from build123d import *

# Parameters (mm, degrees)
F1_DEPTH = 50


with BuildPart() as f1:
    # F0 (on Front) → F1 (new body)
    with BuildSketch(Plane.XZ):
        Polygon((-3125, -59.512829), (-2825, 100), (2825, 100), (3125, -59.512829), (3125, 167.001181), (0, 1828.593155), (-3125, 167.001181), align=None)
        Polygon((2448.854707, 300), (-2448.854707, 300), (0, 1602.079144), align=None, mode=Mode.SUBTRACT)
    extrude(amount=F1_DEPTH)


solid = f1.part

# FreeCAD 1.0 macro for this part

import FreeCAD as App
import Part
import Sketcher
from FreeCAD import Vector
Q = App.Units.Quantity

doc = App.newDocument("Part")
params = doc.addObject("Spreadsheet::Sheet", "Params")
for row, (alias, value) in enumerate([
    ("sketch1_width", "5650 mm"),
    ("pad1_length", "50 mm"),
], start=1):
    params.set(f"A{row}", alias)
    params.set(f"B{row}", "=" + value)
    params.setAlias(f"B{row}", alias)

body = doc.addObject("PartDesign::Body", "Body")

# Sketch on XZ plane
sketch1 = doc.addObject("Sketcher::SketchObject", "Sketch")
body.addObject(sketch1)
sketch1.AttachmentSupport = (doc.XZ_Plane, [""])
sketch1.MapMode = "FlatFace"
sketch1.addGeometry(Part.LineSegment(Vector(-3125, -60, 0), Vector(-2825, 100, 0)), False)
sketch1.addGeometry(Part.LineSegment(Vector(-2825, 100, 0), Vector(2825, 100, 0)), False)
sketch1.addGeometry(Part.LineSegment(Vector(2825, 100, 0), Vector(3125, -60, 0)), False)
sketch1.addGeometry(Part.LineSegment(Vector(3125, -60, 0), Vector(3125, 167, 0)), False)
sketch1.addGeometry(Part.LineSegment(Vector(3125, 167, 0), Vector(0, 1829, 0)), False)
sketch1.addGeometry(Part.LineSegment(Vector(0, 1829, 0), Vector(-3125, 167, 0)), False)
sketch1.addGeometry(Part.LineSegment(Vector(-3125, 167, 0), Vector(-3125, -60, 0)), False)
sketch1.addGeometry(Part.LineSegment(Vector(0, 1602, 0), Vector(2449, 300, 0)), False)
sketch1.addGeometry(Part.LineSegment(Vector(2449, 300, 0), Vector(-2449, 300, 0)), False)
sketch1.addGeometry(Part.LineSegment(Vector(-2449, 300, 0), Vector(0, 1602, 0)), False)
sketch1.addConstraint(Sketcher.Constraint("Coincident", 0, 2, 1, 1))
sketch1.addConstraint(Sketcher.Constraint("Coincident", 1, 2, 2, 1))
sketch1.addConstraint(Sketcher.Constraint("Coincident", 2, 2, 3, 1))
sketch1.addConstraint(Sketcher.Constraint("Coincident", 3, 2, 4, 1))
sketch1.addConstraint(Sketcher.Constraint("Coincident", 4, 2, 5, 1))
sketch1.addConstraint(Sketcher.Constraint("Coincident", 5, 2, 6, 1))
sketch1.addConstraint(Sketcher.Constraint("Coincident", 6, 2, 0, 1))
sketch1.addConstraint(Sketcher.Constraint("Coincident", 7, 2, 8, 1))
sketch1.addConstraint(Sketcher.Constraint("Coincident", 8, 2, 9, 1))
sketch1.addConstraint(Sketcher.Constraint("Coincident", 9, 2, 7, 1))
sketch1.addConstraint(Sketcher.Constraint("Horizontal", 1))
sketch1.addConstraint(Sketcher.Constraint("Vertical", 3))
sketch1.addConstraint(Sketcher.Constraint("Vertical", 6))
sketch1.addConstraint(Sketcher.Constraint("Horizontal", 8))
sketch1.addConstraint(Sketcher.Constraint("Symmetric", 3, 2, 5, 2, -2))
sketch1.addConstraint(Sketcher.Constraint("PointOnObject", 4, 2, -2))
sketch1.addConstraint(Sketcher.Constraint("PointOnObject", 9, 2, -2))
sketch1.addConstraint(Sketcher.Constraint("Parallel", 2, 4))
sketch1.addConstraint(Sketcher.Constraint("Parallel", 0, 5))
sketch1.addConstraint(Sketcher.Constraint("Parallel", 4, 7))
sketch1.addConstraint(Sketcher.Constraint("Parallel", 5, 9))
sketch1.addConstraint(Sketcher.Constraint("Horizontal", 2, 2, 6, 2))
sketch1.addConstraint(Sketcher.Constraint("DistanceX", 1, 1, 1, 2, Q("5650 mm")))
sketch1.addConstraint(Sketcher.Constraint("Angle", 0, Q("28 deg")))
sketch1.addConstraint(Sketcher.Constraint("DistanceY", -1, 1, 0, 2, Q("100 mm")))
sketch1.addConstraint(Sketcher.Constraint("DistanceX", -1, 1, 2, 2, Q("3125 mm")))
sketch1.addConstraint(Sketcher.Constraint("DistanceY", -1, 1, 7, 2, Q("300 mm")))
sketch1.addConstraint(Sketcher.Constraint("Distance", 7, Q("2773.499499 mm")))
sketch1.addConstraint(Sketcher.Constraint("DistanceY", 3, 1, 3, 2, Q("226.51401 mm")))
sketch1.setExpression("Constraints[22]", "Params.sketch1_width")
pad1 = doc.addObject("PartDesign::Pad", "Pad")
body.addObject(pad1)
pad1.Profile = sketch1
pad1.setExpression("Length", "Params.pad1_length")

doc.recompute()
